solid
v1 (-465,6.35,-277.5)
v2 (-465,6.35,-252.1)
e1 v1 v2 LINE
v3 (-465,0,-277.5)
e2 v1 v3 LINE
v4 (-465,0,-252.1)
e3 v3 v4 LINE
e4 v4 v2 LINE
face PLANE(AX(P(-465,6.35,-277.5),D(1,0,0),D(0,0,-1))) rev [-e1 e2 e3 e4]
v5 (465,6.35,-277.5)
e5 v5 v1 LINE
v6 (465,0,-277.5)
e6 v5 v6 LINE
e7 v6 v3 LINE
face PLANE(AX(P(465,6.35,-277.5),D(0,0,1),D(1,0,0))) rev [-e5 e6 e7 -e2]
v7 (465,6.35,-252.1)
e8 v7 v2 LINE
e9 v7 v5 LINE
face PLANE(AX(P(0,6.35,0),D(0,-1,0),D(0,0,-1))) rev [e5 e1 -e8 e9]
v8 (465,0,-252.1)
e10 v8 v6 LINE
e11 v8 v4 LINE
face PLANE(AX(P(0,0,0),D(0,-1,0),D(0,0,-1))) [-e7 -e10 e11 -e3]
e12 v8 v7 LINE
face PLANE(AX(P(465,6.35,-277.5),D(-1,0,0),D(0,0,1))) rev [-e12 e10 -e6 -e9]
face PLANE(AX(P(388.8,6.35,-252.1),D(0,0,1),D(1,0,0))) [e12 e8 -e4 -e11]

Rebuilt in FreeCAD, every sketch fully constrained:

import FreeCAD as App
import Part
import Sketcher
Q = App.Units.Quantity


def add_polygon(sketch, points):
    """Adds a closed chain of lines whose ends are joined by coincident constraints."""
    first, n = sketch.GeometryCount, len(points)
    for a, b in zip(points, points[1:] + points[:1]):
        sketch.addGeometry(Part.LineSegment(App.Vector(*a, 0), App.Vector(*b, 0)), False)
    for i in range(n):
        sketch.addConstraint(Sketcher.Constraint("Coincident", first + i, 2, first + (i + 1) % n, 1))

doc = App.newDocument("Part")
body = doc.addObject("PartDesign::Body", "Body")

# Sketch on XZ plane
sketch1 = body.newObject("Sketcher::SketchObject", "Sketch")
sketch1.AttachmentSupport = (doc.getObject("XZ_Plane"), [""])
sketch1.MapMode = "FlatFace"
add_polygon(sketch1, [(-465, -278), (-465, 278), (465, 278), (465, -278)])  # lines 0-3
add_polygon(sketch1, [(389, 252), (-389, 252), (-389, -252), (389, -252)])  # lines 4-7
sketch1.addConstraint([
    Sketcher.Constraint("Vertical", 0),
    Sketcher.Constraint("Horizontal", 1),
    Sketcher.Constraint("Vertical", 2),
    Sketcher.Constraint("Horizontal", 3),
    Sketcher.Constraint("Horizontal", 4),
    Sketcher.Constraint("Vertical", 5),
    Sketcher.Constraint("Horizontal", 6),
    Sketcher.Constraint("Vertical", 7),
    Sketcher.Constraint("Symmetric", 0, 2, 2, 2, -1, 1),
    Sketcher.Constraint("Symmetric", 4, 2, 6, 2, -1, 1),
    Sketcher.Constraint("DistanceX", 1, 1, 1, 2, Q("930 mm")),
    Sketcher.Constraint("DistanceY", 0, 1, 0, 2, Q("555 mm")),
    Sketcher.Constraint("DistanceX", 4, 2, 4, 1, Q("777.6 mm")),
    Sketcher.Constraint("DistanceY", 5, 2, 5, 1, Q("504.2 mm")),
])
pad1 = body.newObject("PartDesign::Pad", "Pad")
pad1.Profile = sketch1
pad1.Length = 6.35
pad1.Reversed = True

# Sketch on XZ plane
sketch2 = body.newObject("Sketcher::SketchObject", "Sketch001")
sketch2.AttachmentSupport = (doc.getObject("XZ_Plane"), [""])
sketch2.MapMode = "FlatFace"
sketch2.AttachmentOffset = App.Placement(App.Vector(0, 0, -6.35), App.Rotation())
add_polygon(sketch2, [(-465, -252), (-465, 278), (465, 278), (465, -252)])  # lines 0-3
sketch2.addConstraint([
    Sketcher.Constraint("Vertical", 0),
    Sketcher.Constraint("Horizontal", 1),
    Sketcher.Constraint("Vertical", 2),
    Sketcher.Constraint("Horizontal", 3),
    Sketcher.Constraint("DistanceX", 1, 1, 1, 2, Q("930 mm")),
    Sketcher.Constraint("DistanceY", 0, 1, 0, 2, Q("529.6 mm")),
    Sketcher.Constraint("DistanceX", 0, 2, -1, 1, Q("465 mm")),
    Sketcher.Constraint("DistanceY", -1, 1, 0, 2, Q("277.5 mm")),
])
pocket1 = body.newObject("PartDesign::Pocket", "Pocket")
pocket1.Profile = sketch2
pocket1.Type = "ThroughAll"
pocket1.Midplane = True

doc.recompute()
